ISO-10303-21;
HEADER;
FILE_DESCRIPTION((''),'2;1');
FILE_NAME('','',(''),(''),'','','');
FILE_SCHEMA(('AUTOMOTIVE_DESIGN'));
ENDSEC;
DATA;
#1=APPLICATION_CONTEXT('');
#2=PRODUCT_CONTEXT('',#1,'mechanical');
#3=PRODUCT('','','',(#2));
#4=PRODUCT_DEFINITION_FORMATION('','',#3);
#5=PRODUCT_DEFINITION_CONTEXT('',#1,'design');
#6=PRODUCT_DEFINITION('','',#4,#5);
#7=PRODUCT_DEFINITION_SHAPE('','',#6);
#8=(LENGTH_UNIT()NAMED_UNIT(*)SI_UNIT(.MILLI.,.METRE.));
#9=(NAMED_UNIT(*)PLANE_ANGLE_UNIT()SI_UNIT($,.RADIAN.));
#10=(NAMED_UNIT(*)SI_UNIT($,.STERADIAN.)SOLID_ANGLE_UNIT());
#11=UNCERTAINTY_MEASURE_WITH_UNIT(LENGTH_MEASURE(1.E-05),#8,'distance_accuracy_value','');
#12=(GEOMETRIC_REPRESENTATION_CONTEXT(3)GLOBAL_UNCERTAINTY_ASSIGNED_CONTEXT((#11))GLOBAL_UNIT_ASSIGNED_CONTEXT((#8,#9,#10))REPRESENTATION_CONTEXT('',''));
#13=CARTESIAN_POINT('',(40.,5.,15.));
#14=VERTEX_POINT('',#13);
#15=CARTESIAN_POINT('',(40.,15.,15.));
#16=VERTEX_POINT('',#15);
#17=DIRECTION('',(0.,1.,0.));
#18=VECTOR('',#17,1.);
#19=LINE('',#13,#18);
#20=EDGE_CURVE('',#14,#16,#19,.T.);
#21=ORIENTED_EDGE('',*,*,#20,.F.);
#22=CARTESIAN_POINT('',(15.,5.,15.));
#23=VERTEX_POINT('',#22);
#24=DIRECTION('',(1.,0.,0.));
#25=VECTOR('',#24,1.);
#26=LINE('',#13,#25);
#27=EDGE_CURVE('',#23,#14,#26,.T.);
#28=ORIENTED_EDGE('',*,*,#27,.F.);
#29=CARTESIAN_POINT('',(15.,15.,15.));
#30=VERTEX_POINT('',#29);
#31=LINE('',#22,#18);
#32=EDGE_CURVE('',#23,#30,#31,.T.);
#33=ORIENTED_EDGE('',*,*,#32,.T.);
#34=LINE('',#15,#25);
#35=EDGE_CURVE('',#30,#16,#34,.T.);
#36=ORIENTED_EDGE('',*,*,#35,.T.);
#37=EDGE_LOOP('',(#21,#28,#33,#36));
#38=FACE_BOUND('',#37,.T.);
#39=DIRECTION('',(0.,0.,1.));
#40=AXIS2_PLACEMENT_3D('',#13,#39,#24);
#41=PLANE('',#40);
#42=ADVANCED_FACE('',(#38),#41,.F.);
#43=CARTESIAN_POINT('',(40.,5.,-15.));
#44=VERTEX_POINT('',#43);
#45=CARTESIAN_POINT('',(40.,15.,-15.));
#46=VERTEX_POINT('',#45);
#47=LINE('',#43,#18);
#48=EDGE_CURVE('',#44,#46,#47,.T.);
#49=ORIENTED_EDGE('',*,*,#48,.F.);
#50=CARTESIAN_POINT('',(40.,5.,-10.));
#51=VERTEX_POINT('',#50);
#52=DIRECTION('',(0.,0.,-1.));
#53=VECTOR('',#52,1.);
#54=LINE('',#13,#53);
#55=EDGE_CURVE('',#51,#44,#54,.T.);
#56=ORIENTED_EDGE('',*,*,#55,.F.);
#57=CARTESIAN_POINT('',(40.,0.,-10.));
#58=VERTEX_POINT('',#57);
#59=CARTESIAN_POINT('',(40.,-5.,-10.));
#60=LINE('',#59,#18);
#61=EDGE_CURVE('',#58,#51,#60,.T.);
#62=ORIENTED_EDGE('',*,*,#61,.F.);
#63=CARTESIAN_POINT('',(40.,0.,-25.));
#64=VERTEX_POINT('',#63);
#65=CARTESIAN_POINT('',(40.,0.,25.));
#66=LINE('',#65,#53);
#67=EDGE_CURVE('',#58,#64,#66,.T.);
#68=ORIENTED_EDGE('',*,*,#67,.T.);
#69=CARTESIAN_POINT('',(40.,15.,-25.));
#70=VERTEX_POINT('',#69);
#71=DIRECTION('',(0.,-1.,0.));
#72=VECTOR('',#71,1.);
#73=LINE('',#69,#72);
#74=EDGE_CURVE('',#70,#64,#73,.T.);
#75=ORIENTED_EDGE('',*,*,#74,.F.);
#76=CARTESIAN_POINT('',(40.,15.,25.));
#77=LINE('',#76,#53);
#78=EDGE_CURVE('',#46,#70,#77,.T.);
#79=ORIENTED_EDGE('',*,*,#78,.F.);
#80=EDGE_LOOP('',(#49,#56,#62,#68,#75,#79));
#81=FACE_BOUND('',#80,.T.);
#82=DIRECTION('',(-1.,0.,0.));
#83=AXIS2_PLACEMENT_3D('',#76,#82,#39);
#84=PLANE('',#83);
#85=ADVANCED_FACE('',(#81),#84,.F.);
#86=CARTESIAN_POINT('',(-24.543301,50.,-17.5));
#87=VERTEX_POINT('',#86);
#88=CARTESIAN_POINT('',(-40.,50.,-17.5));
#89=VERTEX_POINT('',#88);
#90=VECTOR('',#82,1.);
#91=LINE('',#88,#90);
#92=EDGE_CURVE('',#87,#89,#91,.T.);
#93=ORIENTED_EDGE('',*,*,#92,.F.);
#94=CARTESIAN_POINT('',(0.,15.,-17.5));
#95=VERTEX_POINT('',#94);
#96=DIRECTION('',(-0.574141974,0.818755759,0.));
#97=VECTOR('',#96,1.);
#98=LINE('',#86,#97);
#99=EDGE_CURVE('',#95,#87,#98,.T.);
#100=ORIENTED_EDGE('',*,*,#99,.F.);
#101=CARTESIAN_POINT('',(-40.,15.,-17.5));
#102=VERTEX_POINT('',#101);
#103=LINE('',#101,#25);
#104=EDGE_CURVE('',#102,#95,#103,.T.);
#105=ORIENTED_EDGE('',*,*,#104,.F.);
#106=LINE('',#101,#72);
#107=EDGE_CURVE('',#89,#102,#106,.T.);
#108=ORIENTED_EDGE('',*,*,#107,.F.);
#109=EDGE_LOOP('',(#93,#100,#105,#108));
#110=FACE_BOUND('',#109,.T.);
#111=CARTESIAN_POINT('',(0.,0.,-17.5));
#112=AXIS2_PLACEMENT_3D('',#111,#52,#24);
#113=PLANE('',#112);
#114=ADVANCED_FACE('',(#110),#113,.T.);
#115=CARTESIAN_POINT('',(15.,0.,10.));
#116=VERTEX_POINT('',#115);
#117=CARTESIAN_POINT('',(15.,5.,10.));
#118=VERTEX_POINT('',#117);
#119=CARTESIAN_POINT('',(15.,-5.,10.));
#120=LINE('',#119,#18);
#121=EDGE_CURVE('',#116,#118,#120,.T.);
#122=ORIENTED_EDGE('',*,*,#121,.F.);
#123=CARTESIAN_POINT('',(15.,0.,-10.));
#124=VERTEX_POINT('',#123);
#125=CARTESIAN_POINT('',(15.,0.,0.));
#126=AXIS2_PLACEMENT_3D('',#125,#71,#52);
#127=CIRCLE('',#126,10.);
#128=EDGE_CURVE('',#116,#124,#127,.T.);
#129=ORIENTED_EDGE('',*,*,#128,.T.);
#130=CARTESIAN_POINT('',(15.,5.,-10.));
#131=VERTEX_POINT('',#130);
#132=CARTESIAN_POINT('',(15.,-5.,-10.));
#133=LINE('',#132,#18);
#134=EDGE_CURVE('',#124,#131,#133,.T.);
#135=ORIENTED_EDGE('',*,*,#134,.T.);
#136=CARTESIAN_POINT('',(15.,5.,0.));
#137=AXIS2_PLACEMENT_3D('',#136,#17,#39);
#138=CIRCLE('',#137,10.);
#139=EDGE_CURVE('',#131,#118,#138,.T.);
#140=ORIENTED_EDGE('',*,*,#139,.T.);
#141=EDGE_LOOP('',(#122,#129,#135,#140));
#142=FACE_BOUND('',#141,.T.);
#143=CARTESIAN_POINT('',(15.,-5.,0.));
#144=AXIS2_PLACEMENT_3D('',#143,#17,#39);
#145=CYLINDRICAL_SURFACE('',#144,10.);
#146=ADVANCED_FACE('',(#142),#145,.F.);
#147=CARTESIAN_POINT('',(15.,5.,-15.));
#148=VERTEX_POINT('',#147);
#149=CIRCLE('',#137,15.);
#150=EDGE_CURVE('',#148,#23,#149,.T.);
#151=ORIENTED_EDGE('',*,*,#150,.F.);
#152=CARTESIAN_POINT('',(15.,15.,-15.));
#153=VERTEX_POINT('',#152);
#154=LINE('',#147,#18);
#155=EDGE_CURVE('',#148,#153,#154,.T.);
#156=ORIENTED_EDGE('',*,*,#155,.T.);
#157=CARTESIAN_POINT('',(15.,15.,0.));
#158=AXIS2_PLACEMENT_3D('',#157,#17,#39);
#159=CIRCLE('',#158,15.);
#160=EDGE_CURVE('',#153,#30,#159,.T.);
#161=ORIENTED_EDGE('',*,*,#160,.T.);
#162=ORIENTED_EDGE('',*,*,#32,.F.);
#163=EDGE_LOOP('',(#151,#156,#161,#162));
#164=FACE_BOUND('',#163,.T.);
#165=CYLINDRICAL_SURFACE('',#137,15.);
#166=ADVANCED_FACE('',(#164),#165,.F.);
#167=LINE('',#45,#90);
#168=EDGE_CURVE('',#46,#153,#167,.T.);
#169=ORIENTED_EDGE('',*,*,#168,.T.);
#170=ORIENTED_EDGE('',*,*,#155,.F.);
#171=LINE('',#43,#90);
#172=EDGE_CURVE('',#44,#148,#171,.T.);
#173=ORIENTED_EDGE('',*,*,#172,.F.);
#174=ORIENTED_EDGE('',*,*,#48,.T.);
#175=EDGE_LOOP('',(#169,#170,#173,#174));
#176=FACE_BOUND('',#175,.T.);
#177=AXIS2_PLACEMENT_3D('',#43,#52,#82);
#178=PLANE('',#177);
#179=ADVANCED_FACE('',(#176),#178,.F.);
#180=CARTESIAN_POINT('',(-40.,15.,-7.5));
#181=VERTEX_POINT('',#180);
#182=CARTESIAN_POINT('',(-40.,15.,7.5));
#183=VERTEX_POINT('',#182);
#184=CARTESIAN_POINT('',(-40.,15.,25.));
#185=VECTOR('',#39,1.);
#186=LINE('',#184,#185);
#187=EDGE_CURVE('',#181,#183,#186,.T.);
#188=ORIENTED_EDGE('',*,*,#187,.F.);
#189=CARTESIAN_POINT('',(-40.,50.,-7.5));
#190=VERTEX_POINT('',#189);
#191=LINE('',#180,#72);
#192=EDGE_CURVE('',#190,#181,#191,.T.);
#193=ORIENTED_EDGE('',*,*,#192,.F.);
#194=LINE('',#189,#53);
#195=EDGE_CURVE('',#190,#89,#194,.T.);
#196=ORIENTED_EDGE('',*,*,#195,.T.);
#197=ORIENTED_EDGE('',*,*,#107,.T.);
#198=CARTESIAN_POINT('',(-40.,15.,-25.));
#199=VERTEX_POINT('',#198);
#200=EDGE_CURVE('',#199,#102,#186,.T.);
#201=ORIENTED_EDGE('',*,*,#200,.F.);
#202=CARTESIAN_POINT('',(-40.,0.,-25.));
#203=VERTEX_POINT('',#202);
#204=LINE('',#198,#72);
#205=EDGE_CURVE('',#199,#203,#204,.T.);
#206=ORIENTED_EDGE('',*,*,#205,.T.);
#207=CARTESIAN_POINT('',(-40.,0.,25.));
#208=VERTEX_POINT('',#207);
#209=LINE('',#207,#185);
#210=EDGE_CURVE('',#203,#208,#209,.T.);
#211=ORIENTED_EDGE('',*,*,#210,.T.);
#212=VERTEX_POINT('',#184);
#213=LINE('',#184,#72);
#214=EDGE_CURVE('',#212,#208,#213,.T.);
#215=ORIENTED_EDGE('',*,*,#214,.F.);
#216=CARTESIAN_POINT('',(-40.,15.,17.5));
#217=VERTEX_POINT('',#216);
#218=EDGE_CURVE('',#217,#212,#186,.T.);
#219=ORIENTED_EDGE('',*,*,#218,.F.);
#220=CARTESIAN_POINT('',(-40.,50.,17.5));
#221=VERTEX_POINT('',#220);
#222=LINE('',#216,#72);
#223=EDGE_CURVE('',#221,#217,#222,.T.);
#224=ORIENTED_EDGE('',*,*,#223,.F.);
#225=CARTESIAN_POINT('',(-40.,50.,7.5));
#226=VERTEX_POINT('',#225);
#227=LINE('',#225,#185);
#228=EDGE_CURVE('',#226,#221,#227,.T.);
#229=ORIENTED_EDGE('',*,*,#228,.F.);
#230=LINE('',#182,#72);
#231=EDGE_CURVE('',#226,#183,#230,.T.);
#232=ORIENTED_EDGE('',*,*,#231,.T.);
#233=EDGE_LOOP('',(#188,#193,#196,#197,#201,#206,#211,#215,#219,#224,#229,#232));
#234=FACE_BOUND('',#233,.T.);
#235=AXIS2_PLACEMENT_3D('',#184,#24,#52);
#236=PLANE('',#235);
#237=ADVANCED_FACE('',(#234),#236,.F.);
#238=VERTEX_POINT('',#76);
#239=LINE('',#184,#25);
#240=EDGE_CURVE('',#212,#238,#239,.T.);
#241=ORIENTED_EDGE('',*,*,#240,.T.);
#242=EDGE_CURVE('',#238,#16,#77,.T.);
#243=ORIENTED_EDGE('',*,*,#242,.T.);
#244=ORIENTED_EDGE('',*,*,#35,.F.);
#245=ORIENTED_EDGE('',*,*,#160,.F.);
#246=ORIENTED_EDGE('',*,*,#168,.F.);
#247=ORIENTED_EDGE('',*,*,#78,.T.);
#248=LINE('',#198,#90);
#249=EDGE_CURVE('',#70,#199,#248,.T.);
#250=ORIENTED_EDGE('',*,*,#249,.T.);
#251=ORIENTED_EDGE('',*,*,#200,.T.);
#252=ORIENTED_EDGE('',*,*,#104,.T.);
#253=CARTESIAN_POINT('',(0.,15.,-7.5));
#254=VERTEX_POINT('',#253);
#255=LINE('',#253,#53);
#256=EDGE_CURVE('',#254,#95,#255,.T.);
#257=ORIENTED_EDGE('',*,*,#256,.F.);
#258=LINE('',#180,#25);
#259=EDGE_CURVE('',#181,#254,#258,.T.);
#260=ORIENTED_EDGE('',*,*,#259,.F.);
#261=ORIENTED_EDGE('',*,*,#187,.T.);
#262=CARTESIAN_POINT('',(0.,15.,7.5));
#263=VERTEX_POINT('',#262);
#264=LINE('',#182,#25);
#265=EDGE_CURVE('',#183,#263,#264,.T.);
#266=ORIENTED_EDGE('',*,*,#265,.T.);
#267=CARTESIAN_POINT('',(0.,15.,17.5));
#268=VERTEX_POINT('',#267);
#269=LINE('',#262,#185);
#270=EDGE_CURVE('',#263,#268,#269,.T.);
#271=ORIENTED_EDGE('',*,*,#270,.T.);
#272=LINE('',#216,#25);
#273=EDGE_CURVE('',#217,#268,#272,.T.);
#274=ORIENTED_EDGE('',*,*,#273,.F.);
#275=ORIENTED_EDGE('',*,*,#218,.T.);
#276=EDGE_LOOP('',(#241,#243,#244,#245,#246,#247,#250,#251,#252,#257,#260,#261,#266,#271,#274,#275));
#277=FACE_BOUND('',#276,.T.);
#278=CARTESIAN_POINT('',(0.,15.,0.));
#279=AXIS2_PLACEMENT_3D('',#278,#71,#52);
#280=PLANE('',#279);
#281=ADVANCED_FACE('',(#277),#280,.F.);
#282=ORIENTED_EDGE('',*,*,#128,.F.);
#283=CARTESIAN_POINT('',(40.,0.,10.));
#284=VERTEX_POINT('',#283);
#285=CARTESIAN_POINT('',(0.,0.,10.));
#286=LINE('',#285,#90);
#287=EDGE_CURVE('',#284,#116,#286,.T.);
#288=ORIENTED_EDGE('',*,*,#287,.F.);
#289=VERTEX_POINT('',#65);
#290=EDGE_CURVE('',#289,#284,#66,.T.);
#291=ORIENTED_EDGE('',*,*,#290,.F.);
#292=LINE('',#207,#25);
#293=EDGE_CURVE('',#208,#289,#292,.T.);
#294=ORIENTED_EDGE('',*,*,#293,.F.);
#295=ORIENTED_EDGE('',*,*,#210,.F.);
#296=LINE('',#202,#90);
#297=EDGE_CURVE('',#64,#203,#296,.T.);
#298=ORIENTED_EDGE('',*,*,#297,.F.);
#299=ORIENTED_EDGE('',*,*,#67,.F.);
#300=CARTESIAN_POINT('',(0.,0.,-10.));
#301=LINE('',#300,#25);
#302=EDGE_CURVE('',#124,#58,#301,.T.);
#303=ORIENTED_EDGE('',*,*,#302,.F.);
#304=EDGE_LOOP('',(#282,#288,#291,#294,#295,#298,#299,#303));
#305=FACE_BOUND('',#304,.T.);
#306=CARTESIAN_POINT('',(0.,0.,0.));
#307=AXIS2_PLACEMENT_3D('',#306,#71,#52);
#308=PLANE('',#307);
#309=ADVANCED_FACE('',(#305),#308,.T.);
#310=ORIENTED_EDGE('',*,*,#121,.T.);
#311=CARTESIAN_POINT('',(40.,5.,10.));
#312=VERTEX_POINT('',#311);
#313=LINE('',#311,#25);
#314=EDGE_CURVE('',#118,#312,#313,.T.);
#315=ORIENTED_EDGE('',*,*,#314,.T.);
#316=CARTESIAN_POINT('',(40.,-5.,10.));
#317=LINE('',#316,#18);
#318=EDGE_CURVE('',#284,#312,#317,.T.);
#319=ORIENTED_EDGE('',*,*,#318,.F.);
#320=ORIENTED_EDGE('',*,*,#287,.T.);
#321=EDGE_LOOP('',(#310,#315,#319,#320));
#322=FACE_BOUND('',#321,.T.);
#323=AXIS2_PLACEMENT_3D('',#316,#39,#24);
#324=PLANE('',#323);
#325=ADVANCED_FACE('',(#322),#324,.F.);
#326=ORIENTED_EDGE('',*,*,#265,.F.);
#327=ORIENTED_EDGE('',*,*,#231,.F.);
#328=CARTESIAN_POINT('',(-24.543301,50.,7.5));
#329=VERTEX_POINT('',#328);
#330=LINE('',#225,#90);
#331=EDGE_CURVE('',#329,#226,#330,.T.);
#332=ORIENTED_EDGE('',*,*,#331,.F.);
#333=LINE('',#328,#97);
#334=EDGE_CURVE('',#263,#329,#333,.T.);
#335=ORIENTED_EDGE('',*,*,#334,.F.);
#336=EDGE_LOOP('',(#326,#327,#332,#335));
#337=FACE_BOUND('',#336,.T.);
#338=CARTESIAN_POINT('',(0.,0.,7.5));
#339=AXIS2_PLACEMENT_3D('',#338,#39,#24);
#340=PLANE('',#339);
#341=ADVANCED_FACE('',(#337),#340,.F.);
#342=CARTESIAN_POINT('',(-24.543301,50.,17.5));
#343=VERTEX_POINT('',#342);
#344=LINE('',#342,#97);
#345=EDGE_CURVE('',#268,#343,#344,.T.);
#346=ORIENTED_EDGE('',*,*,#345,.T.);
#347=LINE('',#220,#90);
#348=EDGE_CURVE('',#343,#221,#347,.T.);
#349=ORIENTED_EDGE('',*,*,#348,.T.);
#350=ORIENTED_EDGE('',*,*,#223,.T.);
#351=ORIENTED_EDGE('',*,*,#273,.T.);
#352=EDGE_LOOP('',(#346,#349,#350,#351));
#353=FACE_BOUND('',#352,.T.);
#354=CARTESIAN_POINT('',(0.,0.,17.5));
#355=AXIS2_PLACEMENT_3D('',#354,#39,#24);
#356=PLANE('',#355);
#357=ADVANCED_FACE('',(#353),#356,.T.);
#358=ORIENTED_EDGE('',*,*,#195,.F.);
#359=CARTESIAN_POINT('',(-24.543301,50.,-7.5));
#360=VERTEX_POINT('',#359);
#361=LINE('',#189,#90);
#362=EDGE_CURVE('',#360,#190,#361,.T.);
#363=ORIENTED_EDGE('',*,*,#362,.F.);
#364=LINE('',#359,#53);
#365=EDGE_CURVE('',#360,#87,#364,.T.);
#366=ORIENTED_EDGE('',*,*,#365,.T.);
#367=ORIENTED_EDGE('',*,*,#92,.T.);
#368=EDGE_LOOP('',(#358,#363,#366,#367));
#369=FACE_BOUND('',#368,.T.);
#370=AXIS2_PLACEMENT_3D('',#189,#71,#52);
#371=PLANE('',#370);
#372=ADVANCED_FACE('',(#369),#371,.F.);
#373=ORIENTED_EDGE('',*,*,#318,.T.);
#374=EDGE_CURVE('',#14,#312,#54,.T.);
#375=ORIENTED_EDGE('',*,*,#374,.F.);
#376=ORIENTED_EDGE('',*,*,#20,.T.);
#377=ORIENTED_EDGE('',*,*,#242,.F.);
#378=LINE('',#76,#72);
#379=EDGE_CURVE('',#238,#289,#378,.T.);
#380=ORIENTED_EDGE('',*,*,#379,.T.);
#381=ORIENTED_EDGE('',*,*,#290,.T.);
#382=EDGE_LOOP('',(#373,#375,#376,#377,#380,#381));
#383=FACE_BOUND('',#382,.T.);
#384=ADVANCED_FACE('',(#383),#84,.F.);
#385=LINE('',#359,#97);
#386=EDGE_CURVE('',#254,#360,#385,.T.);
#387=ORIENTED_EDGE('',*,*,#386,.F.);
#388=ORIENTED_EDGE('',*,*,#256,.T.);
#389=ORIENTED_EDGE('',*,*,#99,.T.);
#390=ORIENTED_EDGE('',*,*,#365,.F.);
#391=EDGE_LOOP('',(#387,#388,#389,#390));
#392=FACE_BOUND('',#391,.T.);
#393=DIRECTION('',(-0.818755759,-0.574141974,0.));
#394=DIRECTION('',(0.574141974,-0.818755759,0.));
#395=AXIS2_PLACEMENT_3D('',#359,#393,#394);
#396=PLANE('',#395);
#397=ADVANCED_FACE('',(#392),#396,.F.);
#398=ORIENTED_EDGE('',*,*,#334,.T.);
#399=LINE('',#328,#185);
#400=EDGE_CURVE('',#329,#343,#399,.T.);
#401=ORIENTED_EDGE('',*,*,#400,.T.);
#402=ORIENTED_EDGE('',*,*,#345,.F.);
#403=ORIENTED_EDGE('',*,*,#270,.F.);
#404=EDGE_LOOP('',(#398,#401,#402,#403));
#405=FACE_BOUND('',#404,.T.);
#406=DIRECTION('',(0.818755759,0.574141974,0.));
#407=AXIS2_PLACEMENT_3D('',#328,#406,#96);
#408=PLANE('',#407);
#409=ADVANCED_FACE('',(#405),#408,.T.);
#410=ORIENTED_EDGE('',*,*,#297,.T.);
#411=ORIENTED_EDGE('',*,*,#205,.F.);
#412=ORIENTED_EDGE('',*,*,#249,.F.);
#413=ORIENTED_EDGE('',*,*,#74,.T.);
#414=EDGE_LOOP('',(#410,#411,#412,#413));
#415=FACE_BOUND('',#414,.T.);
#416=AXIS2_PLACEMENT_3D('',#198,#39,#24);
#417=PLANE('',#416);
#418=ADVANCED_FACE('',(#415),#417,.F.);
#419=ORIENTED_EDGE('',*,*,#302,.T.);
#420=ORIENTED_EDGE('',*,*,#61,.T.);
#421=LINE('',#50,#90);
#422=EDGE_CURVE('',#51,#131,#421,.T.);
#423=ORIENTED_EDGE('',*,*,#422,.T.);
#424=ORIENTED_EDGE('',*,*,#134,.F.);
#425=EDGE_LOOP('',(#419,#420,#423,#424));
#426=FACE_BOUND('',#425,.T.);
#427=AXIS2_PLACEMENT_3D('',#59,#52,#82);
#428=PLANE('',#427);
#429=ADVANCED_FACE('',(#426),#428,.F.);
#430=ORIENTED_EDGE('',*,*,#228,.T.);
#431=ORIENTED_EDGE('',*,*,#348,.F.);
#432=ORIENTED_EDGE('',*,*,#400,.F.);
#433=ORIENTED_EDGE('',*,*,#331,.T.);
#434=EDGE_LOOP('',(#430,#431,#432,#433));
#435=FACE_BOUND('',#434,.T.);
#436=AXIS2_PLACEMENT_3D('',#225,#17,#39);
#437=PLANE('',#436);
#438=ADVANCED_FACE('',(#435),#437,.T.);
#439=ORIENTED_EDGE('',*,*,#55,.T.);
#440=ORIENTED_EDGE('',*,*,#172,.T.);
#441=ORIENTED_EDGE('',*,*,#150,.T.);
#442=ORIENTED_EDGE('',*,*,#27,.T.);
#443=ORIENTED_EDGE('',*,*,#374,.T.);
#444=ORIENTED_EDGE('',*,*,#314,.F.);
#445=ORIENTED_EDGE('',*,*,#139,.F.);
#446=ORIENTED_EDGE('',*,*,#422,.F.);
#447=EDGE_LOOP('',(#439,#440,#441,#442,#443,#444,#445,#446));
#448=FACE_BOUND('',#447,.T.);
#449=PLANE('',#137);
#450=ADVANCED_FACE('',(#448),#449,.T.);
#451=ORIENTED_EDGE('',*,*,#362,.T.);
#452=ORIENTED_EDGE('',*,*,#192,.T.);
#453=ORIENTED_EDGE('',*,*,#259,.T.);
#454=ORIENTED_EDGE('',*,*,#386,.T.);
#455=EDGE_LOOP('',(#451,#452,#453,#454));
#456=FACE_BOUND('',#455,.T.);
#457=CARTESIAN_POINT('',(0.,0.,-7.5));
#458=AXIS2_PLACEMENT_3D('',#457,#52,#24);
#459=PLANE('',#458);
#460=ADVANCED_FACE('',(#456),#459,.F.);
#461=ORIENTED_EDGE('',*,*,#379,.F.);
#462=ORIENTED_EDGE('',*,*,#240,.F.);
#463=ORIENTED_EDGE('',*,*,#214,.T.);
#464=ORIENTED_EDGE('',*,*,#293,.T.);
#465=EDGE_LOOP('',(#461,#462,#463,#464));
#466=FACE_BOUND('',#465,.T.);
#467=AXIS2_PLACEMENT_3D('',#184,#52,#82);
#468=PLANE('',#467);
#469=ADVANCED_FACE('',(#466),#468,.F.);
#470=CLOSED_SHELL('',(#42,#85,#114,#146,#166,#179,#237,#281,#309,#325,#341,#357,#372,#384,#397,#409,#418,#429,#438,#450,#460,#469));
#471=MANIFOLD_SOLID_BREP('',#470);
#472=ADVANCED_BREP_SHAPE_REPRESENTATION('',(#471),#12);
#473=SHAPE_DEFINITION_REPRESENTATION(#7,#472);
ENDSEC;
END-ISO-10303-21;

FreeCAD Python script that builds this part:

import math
import FreeCAD as App
import Part
import Sketcher

V = App.Vector
Q = App.Units.Quantity

doc = App.newDocument("Part")
body = doc.addObject("PartDesign::Body", "Body")

# Sketch on XZ plane
sketch1 = body.newObject("Sketcher::SketchObject", "Sketch")
sketch1.AttachmentSupport = (doc.getObject("XZ_Plane"), [""])
sketch1.MapMode = "FlatFace"
sketch1.addGeometry([
    Part.LineSegment(V(-40, -25, 0), V(-40, 25, 0)),
    Part.LineSegment(V(-40, 25, 0), V(40, 25, 0)),
    Part.LineSegment(V(40, 25, 0), V(40, -25, 0)),
    Part.LineSegment(V(40, -25, 0), V(-40, -25, 0)),
], False)
sketch1.addConstraint([
    Sketcher.Constraint("Coincident", 0, 2, 1, 1),
    Sketcher.Constraint("Coincident", 1, 2, 2, 1),
    Sketcher.Constraint("Coincident", 2, 2, 3, 1),
    Sketcher.Constraint("Coincident", 3, 2, 0, 1),
    Sketcher.Constraint("Vertical", 0),
    Sketcher.Constraint("Horizontal", 1),
    Sketcher.Constraint("Vertical", 2),
    Sketcher.Constraint("Horizontal", 3),
    Sketcher.Constraint("Symmetric", 0, 2, 2, 2, -1, 1),
    Sketcher.Constraint("DistanceX", 1, 1, 1, 2, Q("80 mm")),
    Sketcher.Constraint("DistanceY", 0, 1, 0, 2, Q("50 mm")),
])
pad1 = body.newObject("PartDesign::Pad", "Pad")
pad1.Profile = sketch1
pad1.Length = 15
pad1.Reversed = True

# Sketch on XZ plane
sketch2 = body.newObject("Sketcher::SketchObject", "Sketch001")
sketch2.AttachmentSupport = (doc.getObject("XZ_Plane"), [""])
sketch2.MapMode = "FlatFace"
sketch2.AttachmentOffset = App.Placement(V(0, 0, -15), App.Rotation())
sketch2.addGeometry([
    Part.LineSegment(V(15, 15, 0), V(40, 15, 0)),
    Part.LineSegment(V(40, 15, 0), V(40, -15, 0)),
    Part.LineSegment(V(40, -15, 0), V(15, -15, 0)),
    Part.ArcOfCircle(Part.Circle(V(15, 0, 0), V(0, 0, 1), 15), math.radians(90), math.radians(270)),
], False)
sketch2.addConstraint([
    Sketcher.Constraint("Coincident", 0, 2, 1, 1),
    Sketcher.Constraint("Coincident", 1, 2, 2, 1),
    Sketcher.Constraint("Tangent", 2, 2, 3, 2),
    Sketcher.Constraint("Tangent", 3, 1, 0, 1),
    Sketcher.Constraint("Horizontal", 0),
    Sketcher.Constraint("Vertical", 1),
    Sketcher.Constraint("Horizontal", 2),
    Sketcher.Constraint("PointOnObject", 3, 3, -1),
    Sketcher.Constraint("Radius", 3, Q("15 mm")),
    Sketcher.Constraint("DistanceX", 0, 1, 0, 2, Q("25 mm")),
    Sketcher.Constraint("DistanceX", -1, 1, 3, 3, Q("15 mm")),
])
pocket1 = body.newObject("PartDesign::Pocket", "Pocket")
pocket1.Profile = sketch2
pocket1.Length = 10
pocket1.Reversed = True

# Sketch on XZ plane
sketch3 = body.newObject("Sketcher::SketchObject", "Sketch002")
sketch3.AttachmentSupport = (doc.getObject("XZ_Plane"), [""])
sketch3.MapMode = "FlatFace"
sketch3.AttachmentOffset = App.Placement(V(0, 0, -5), App.Rotation())
sketch3.addGeometry([
    Part.LineSegment(V(15, 10, 0), V(40, 10, 0)),
    Part.LineSegment(V(40, 10, 0), V(40, -10, 0)),
    Part.LineSegment(V(40, -10, 0), V(15, -10, 0)),
    Part.ArcOfCircle(Part.Circle(V(15, 0, 0), V(0, 0, 1), 10), math.radians(90), math.radians(270)),
], False)
sketch3.addConstraint([
    Sketcher.Constraint("Coincident", 0, 2, 1, 1),
    Sketcher.Constraint("Coincident", 1, 2, 2, 1),
    Sketcher.Constraint("Tangent", 2, 2, 3, 2),
    Sketcher.Constraint("Tangent", 3, 1, 0, 1),
    Sketcher.Constraint("Horizontal", 0),
    Sketcher.Constraint("Vertical", 1),
    Sketcher.Constraint("Horizontal", 2),
    Sketcher.Constraint("PointOnObject", 3, 3, -1),
    Sketcher.Constraint("Radius", 3, Q("10 mm")),
    Sketcher.Constraint("DistanceX", 0, 1, 0, 2, Q("25 mm")),
    Sketcher.Constraint("DistanceX", -1, 1, 3, 3, Q("15 mm")),
])
pocket2 = body.newObject("PartDesign::Pocket", "Pocket001")
pocket2.Profile = sketch3
pocket2.Length = 10
pocket2.Reversed = True

# Sketch on XY plane
sketch4 = body.newObject("Sketcher::SketchObject", "Sketch003")
sketch4.AttachmentSupport = (doc.getObject("XY_Plane"), [""])
sketch4.MapMode = "FlatFace"
sketch4.AttachmentOffset = App.Placement(V(0, 0, 17.5), App.Rotation())
sketch4.addGeometry([
    Part.LineSegment(V(-40, 50, 0), V(-40, 15, 0)),
    Part.LineSegment(V(-40, 15, 0), V(0, 15, 0)),
    Part.LineSegment(V(0, 15, 0), V(-24.543301, 50, 0)),
    Part.LineSegment(V(-24.543301, 50, 0), V(-40, 50, 0)),
], False)
sketch4.addConstraint([
    Sketcher.Constraint("Coincident", 0, 2, 1, 1),
    Sketcher.Constraint("Coincident", 1, 2, 2, 1),
    Sketcher.Constraint("Coincident", 2, 2, 3, 1),
    Sketcher.Constraint("Coincident", 3, 2, 0, 1),
    Sketcher.Constraint("Vertical", 0),
    Sketcher.Constraint("Horizontal", 1),
    Sketcher.Constraint("Horizontal", 3),
    Sketcher.Constraint("PointOnObject", 1, 2, -2),
    Sketcher.Constraint("DistanceX", 1, 1, 1, 2, Q("40 mm")),
    Sketcher.Constraint("DistanceY", 0, 2, 0, 1, Q("35 mm")),
    Sketcher.Constraint("DistanceY", -1, 1, 0, 2, Q("15 mm")),
    Sketcher.Constraint("DistanceX", 3, 2, 3, 1, Q("15.456699 mm")),
])
pad2 = body.newObject("PartDesign::Pad", "Pad001")
pad2.Profile = sketch4
pad2.Length = 10
pad2.Reversed = True
doc.recompute()

mirrored = body.newObject("PartDesign::Mirrored", "Mirrored")
mirrored.Originals = [pad2]
mirrored.MirrorPlane = (doc.getObject("XY_Plane"), [""])
body.Tip = mirrored

doc.recompute()
